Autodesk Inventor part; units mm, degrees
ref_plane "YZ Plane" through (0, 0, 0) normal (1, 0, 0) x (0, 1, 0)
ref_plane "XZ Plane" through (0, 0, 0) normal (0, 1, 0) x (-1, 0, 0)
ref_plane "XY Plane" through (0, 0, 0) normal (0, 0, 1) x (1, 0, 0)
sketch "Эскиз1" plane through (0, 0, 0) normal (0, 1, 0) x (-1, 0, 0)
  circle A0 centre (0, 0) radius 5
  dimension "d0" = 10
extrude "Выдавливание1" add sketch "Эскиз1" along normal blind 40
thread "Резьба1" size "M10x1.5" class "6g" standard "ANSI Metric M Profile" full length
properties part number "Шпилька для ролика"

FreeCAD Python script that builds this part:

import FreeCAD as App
import Part
import Sketcher
from FreeCAD import Vector
Q = App.Units.Quantity

doc = App.newDocument("Part")
body = doc.addObject("PartDesign::Body", "Body")

# Sketch on XZ plane
sketch1 = doc.addObject("Sketcher::SketchObject", "Sketch")
body.addObject(sketch1)
sketch1.AttachmentSupport = (doc.XZ_Plane, [""])
sketch1.MapMode = "FlatFace"
sketch1.addGeometry(Part.Circle(Vector(0, 0, 0), Vector(0, 0, 1), 5), False)
sketch1.addConstraint(Sketcher.Constraint("Coincident", 0, 3, -1, 1))
sketch1.addConstraint(Sketcher.Constraint("Diameter", 0, Q("10 mm")))
pad1 = doc.addObject("PartDesign::Pad", "Pad")
body.addObject(pad1)
pad1.Profile = sketch1
pad1.Length = 40
pad1.Reversed = True

doc.recompute()
